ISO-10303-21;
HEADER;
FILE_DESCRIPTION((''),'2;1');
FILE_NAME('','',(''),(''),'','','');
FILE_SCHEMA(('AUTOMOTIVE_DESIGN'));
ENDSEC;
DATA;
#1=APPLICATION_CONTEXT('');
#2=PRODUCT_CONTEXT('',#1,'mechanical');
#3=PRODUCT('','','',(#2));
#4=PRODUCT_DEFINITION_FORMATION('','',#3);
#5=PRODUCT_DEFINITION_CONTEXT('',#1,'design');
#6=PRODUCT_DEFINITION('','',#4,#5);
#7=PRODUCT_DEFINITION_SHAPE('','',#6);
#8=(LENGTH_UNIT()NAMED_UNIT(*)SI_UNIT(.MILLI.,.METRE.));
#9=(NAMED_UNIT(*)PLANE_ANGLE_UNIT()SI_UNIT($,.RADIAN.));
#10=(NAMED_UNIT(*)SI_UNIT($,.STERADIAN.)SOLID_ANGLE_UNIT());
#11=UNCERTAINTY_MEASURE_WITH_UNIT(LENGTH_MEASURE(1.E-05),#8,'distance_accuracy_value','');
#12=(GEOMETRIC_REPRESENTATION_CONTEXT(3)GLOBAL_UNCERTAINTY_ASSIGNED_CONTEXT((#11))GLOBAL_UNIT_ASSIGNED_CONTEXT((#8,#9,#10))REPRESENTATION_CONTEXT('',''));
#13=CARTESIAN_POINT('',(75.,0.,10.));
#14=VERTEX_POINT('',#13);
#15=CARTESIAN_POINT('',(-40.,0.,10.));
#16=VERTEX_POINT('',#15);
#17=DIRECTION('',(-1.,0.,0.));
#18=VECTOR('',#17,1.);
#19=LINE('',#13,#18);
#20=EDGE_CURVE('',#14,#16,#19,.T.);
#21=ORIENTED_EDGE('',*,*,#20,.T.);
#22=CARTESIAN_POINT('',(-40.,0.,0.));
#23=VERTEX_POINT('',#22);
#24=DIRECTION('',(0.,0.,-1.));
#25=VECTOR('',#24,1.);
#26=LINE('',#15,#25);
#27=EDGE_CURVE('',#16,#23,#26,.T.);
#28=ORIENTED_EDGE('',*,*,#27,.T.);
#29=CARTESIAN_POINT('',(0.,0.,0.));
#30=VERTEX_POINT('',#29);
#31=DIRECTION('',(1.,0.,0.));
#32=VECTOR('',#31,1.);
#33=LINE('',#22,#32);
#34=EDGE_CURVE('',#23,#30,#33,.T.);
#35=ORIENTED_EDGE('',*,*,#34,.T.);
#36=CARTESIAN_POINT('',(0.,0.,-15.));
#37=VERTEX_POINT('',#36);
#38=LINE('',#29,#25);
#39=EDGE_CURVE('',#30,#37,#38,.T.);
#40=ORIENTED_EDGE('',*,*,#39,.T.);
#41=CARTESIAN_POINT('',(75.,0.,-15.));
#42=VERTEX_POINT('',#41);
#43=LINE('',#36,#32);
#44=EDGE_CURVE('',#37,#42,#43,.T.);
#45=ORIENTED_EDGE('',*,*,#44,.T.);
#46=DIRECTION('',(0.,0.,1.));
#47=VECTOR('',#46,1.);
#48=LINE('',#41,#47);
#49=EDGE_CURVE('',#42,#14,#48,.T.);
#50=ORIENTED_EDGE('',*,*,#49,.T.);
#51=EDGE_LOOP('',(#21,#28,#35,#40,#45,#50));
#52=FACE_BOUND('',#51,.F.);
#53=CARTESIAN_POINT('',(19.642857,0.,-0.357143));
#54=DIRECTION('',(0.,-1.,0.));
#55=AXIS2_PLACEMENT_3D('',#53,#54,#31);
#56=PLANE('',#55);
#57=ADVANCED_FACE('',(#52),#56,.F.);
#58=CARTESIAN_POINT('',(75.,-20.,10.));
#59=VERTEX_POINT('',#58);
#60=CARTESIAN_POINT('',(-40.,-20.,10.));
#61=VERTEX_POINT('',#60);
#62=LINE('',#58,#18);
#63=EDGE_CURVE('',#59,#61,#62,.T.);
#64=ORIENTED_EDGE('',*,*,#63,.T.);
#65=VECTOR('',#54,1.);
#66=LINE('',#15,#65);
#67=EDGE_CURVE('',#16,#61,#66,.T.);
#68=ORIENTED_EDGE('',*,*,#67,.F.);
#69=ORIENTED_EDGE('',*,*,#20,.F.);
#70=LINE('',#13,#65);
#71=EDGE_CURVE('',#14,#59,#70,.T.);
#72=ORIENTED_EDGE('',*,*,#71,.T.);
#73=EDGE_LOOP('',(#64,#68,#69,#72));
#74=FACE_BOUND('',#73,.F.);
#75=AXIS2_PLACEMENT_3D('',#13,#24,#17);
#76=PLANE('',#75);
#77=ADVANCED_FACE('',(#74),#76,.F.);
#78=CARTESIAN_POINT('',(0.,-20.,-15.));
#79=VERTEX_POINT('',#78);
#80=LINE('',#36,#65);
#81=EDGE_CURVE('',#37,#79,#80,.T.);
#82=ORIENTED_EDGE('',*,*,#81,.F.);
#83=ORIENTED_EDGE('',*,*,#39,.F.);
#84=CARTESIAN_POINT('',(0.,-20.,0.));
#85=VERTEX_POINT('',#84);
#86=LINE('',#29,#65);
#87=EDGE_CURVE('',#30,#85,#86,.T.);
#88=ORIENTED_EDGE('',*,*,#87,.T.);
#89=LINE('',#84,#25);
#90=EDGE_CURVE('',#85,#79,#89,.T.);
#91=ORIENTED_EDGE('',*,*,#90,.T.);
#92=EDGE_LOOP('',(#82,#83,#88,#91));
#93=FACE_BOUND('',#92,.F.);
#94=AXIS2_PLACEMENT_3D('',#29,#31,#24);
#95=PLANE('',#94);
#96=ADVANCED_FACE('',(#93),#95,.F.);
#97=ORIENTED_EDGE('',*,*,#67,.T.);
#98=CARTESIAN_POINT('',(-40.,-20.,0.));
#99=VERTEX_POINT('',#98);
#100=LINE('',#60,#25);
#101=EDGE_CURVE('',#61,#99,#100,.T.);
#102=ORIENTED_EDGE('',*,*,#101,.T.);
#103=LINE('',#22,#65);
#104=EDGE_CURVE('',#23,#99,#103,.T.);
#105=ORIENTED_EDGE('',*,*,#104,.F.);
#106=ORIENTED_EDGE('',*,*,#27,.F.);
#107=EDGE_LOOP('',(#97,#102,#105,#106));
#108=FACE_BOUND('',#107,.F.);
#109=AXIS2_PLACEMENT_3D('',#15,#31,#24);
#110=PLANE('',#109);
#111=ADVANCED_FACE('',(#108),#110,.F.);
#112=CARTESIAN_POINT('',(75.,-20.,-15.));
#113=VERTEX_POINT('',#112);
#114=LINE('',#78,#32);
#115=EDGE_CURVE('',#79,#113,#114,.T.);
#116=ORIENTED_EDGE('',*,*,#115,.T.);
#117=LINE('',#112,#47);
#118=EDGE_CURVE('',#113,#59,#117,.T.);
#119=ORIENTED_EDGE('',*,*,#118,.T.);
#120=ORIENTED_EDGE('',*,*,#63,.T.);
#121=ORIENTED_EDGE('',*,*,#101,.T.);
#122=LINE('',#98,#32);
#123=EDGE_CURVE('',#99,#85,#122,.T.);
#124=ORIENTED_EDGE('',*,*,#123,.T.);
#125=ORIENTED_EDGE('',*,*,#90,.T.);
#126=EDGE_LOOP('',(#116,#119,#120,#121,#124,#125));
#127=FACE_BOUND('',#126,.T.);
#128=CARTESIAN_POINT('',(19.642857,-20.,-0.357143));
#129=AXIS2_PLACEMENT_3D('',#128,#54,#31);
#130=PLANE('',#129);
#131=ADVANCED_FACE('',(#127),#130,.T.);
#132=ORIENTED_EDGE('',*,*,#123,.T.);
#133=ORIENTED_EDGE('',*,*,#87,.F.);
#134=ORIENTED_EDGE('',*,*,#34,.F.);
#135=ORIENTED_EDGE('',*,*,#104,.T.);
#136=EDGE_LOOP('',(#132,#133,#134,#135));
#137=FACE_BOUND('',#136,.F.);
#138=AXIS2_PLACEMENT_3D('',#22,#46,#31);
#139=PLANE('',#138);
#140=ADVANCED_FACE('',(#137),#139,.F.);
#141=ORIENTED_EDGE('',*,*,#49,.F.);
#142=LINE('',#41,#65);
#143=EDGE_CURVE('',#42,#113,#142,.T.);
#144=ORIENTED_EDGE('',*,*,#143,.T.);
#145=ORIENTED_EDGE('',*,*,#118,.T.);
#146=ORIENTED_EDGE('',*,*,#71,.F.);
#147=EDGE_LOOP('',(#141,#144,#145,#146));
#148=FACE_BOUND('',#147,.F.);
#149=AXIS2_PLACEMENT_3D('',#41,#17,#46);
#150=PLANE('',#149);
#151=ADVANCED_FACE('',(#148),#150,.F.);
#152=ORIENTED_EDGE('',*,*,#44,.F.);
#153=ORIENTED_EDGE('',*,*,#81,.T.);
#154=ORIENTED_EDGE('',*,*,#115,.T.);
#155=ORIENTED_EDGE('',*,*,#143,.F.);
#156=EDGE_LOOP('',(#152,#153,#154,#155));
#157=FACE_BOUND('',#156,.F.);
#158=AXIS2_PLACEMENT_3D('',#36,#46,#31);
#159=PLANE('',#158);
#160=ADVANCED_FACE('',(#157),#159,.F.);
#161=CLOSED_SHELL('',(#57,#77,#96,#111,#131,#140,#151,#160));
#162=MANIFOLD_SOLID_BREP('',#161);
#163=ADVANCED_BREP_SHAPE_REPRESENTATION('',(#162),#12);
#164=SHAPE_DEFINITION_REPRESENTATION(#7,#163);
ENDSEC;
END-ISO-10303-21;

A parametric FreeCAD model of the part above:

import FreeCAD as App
import Part
import Sketcher

V = App.Vector


def add_polygon(sketch, points):
    """Adds a closed chain of lines whose ends are joined by coincident constraints."""
    first, n = sketch.GeometryCount, len(points)
    for a, b in zip(points, points[1:] + points[:1]):
        sketch.addGeometry(Part.LineSegment(App.Vector(*a, 0), App.Vector(*b, 0)), False)
    for i in range(n):
        sketch.addConstraint(Sketcher.Constraint("Coincident", first + i, 2, first + (i + 1) % n, 1))

doc = App.newDocument("Part")
params = doc.addObject("Spreadsheet::Sheet", "Params")
for row, (alias, value) in enumerate([
    ("sketch1_width", "40 mm"),
    ("sketch1_width2", "75 mm"),
    ("sketch1_height", "10 mm"),
    ("sketch1_height2", "15 mm"),
    ("pad1_length", "20 mm"),
], start=1):
    params.set(f"A{row}", alias)
    params.set(f"B{row}", "=" + value)
    params.setAlias(f"B{row}", alias)

body = doc.addObject("PartDesign::Body", "Body")

# Sketch on XZ plane
sketch1 = doc.addObject("Sketcher::SketchObject", "Sketch")
body.addObject(sketch1)
sketch1.AttachmentSupport = (doc.XZ_Plane, [""])
sketch1.MapMode = "FlatFace"
add_polygon(sketch1, [(-40, 10), (-40, 0), (0, 0), (0, -15), (75, -15), (75, 10)])  # lines 0-5
sketch1.addConstraint([
    Sketcher.Constraint("Vertical", 0),
    Sketcher.Constraint("Horizontal", 1),
    Sketcher.Constraint("Vertical", 2),
    Sketcher.Constraint("Horizontal", 3),
    Sketcher.Constraint("Vertical", 4),
    Sketcher.Constraint("Horizontal", 5),
    Sketcher.Constraint("Coincident", 1, 2, -1, 1),
    Sketcher.Constraint("DistanceX", 1, 1, 1, 2, 40.0),
    Sketcher.Constraint("DistanceX", 3, 1, 3, 2, 75.0),
    Sketcher.Constraint("DistanceY", 0, 2, 0, 1, 10.0),
    Sketcher.Constraint("DistanceY", 2, 2, 2, 1, 15.0),
])
sketch1.setExpression("Constraints[13]", "Params.sketch1_width")
sketch1.setExpression("Constraints[14]", "Params.sketch1_width2")
sketch1.setExpression("Constraints[15]", "Params.sketch1_height")
sketch1.setExpression("Constraints[16]", "Params.sketch1_height2")
pad1 = doc.addObject("PartDesign::Pad", "Pad")
body.addObject(pad1)
pad1.Profile = sketch1
pad1.setExpression("Length", "Params.pad1_length")

doc.recompute()
